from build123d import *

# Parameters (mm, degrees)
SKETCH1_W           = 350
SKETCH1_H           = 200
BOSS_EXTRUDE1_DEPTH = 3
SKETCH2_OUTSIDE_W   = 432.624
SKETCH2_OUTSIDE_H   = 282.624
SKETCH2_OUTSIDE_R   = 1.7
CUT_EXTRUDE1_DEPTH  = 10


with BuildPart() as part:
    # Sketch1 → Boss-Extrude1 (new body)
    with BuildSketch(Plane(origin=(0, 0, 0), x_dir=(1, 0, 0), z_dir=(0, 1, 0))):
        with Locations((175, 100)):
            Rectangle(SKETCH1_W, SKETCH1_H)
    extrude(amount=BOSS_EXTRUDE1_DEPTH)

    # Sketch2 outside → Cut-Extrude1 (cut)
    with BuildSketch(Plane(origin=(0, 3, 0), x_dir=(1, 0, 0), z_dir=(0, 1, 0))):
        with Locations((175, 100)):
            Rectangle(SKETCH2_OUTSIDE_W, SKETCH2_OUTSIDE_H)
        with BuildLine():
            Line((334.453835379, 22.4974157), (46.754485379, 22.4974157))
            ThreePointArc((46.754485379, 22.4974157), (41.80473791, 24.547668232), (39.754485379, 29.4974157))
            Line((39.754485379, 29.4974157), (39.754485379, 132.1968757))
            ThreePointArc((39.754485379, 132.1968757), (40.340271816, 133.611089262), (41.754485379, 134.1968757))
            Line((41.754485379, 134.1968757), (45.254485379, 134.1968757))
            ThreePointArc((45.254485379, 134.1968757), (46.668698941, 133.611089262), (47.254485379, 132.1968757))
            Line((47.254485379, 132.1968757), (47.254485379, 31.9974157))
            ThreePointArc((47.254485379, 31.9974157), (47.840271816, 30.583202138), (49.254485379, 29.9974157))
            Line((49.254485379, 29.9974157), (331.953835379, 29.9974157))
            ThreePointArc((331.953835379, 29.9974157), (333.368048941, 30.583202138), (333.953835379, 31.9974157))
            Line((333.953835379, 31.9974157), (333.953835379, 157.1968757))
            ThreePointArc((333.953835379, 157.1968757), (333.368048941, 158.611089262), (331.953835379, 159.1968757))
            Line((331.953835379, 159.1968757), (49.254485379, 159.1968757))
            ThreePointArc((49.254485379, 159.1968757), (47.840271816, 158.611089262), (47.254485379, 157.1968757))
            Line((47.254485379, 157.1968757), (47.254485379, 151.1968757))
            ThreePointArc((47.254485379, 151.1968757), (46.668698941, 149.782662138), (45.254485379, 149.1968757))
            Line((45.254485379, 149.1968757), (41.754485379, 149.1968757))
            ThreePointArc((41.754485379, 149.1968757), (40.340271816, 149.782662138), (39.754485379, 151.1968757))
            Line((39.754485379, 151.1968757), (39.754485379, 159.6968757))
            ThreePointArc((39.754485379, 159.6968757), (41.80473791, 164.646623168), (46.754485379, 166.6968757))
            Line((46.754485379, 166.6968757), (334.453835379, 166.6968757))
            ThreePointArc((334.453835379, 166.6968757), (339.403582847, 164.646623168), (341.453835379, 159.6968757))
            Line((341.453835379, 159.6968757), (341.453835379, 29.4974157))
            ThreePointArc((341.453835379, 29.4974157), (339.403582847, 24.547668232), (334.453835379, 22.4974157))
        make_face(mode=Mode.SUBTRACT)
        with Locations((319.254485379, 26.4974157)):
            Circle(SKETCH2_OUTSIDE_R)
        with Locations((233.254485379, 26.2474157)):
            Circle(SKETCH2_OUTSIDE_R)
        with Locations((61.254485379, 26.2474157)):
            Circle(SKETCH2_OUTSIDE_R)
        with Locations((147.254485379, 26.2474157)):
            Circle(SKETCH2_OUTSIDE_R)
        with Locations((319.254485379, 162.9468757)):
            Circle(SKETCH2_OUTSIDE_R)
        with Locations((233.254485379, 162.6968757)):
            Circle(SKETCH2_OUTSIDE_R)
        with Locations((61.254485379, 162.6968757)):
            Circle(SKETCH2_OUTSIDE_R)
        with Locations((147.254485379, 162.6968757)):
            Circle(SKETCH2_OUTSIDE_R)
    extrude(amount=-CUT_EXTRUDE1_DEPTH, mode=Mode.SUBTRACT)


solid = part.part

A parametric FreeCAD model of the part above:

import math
import FreeCAD as App
import Part
import Sketcher

doc = App.newDocument("Part")
params = doc.addObject("Spreadsheet::Sheet", "Params")
for row, (alias, value) in enumerate([
    ("sketch1_width", "350 mm"),
    ("sketch1_height", "200 mm"),
    ("pad1_length", "3 mm"),
    ("sketch2_radius", "7 mm"),
    ("sketch2_radius2", "2 mm"),
    ("sketch2_diameter", "3.4 mm"),
    ("sketch2_height", "6 mm"),
    ("sketch2_width", "3.5 mm"),
    ("pocket1_length", "10 mm"),
], start=1):
    params.set(f"A{row}", alias)
    params.set(f"B{row}", "=" + value)
    params.setAlias(f"B{row}", alias)

body = doc.addObject("PartDesign::Body", "Body")

# Sketch on XZ plane
sketch1 = body.newObject("Sketcher::SketchObject", "Sketch")
sketch1.AttachmentSupport = (doc.getObject("XZ_Plane"), [""])
sketch1.MapMode = "FlatFace"
sketch1.addGeometry([
    Part.LineSegment(App.Vector(0, -200, 0), App.Vector(0, 0, 0)),
    Part.LineSegment(App.Vector(0, 0, 0), App.Vector(350, 0, 0)),
    Part.LineSegment(App.Vector(350, 0, 0), App.Vector(350, -200, 0)),
    Part.LineSegment(App.Vector(350, -200, 0), App.Vector(0, -200, 0)),
], False)
sketch1.addConstraint([
    Sketcher.Constraint("Coincident", 0, 2, 1, 1),
    Sketcher.Constraint("Coincident", 1, 2, 2, 1),
    Sketcher.Constraint("Coincident", 2, 2, 3, 1),
    Sketcher.Constraint("Coincident", 3, 2, 0, 1),
    Sketcher.Constraint("Vertical", 0),
    Sketcher.Constraint("Horizontal", 1),
    Sketcher.Constraint("Vertical", 2),
    Sketcher.Constraint("Horizontal", 3),
    Sketcher.Constraint("Coincident", 0, 2, -1, 1),
    Sketcher.Constraint("DistanceX", 1, 1, 1, 2, 350.0),
    Sketcher.Constraint("DistanceY", 0, 1, 0, 2, 200.0),
])
sketch1.setExpression("Constraints[9]", "Params.sketch1_width")
sketch1.setExpression("Constraints[10]", "Params.sketch1_height")
pad1 = body.newObject("PartDesign::Pad", "Pad")
pad1.Profile = sketch1
pad1.setExpression("Length", "Params.pad1_length")
pad1.Reversed = True

# Sketch on XZ plane
sketch2 = body.newObject("Sketcher::SketchObject", "Sketch001")
sketch2.AttachmentSupport = (doc.getObject("XZ_Plane"), [""])
sketch2.MapMode = "FlatFace"
sketch2.AttachmentOffset = App.Placement(App.Vector(0, 0, -3), App.Rotation())
sketch2.addGeometry([
    Part.LineSegment(App.Vector(-41.3, -241.3, 0), App.Vector(-41.3, 41.3, 0)),  # 0
    Part.LineSegment(App.Vector(-41.3, 41.3, 0), App.Vector(391.3, 41.3, 0)),  # 1
    Part.LineSegment(App.Vector(391.3, 41.3, 0), App.Vector(391.3, -241.3, 0)),  # 2
    Part.LineSegment(App.Vector(391.3, -241.3, 0), App.Vector(-41.3, -241.3, 0)),  # 3
    Part.ArcOfCircle(Part.Circle(App.Vector(334.5, -29.5, 0), App.Vector(0, 0, 1), 7), math.radians(0), math.radians(90)),  # 4
    Part.LineSegment(App.Vector(334.5, -22.5, 0), App.Vector(46.8, -22.5, 0)),  # 5
    Part.ArcOfCircle(Part.Circle(App.Vector(46.8, -29.5, 0), App.Vector(0, 0, 1), 7), math.radians(90), math.radians(180)),  # 6
    Part.LineSegment(App.Vector(39.8, -29.5, 0), App.Vector(39.8, -132.2, 0)),  # 7
    Part.ArcOfCircle(Part.Circle(App.Vector(41.8, -132.2, 0), App.Vector(0, 0, 1), 2), math.radians(180), math.radians(270)),  # 8
    Part.LineSegment(App.Vector(41.8, -134.2, 0), App.Vector(45.3, -134.2, 0)),  # 9
    Part.ArcOfCircle(Part.Circle(App.Vector(45.3, -132.2, 0), App.Vector(0, 0, 1), 2), math.radians(-90), math.radians(0)),  # 10
    Part.LineSegment(App.Vector(47.3, -132.2, 0), App.Vector(47.3, -32, 0)),  # 11
    Part.ArcOfCircle(Part.Circle(App.Vector(49.3, -32, 0), App.Vector(0, 0, 1), 2), math.radians(90), math.radians(180)),  # 12
    Part.LineSegment(App.Vector(49.3, -30, 0), App.Vector(332, -30, 0)),  # 13
    Part.ArcOfCircle(Part.Circle(App.Vector(332, -32, 0), App.Vector(0, 0, 1), 2), math.radians(0), math.radians(90)),  # 14
    Part.LineSegment(App.Vector(334, -32, 0), App.Vector(334, -157.2, 0)),  # 15
    Part.ArcOfCircle(Part.Circle(App.Vector(332, -157.2, 0), App.Vector(0, 0, 1), 2), math.radians(-90), math.radians(0)),  # 16
    Part.LineSegment(App.Vector(332, -159.2, 0), App.Vector(49.3, -159.2, 0)),  # 17
    Part.ArcOfCircle(Part.Circle(App.Vector(49.3, -157.2, 0), App.Vector(0, 0, 1), 2), math.radians(180), math.radians(270)),  # 18
    Part.LineSegment(App.Vector(47.3, -157.2, 0), App.Vector(47.3, -151.2, 0)),  # 19
    Part.ArcOfCircle(Part.Circle(App.Vector(45.3, -151.2, 0), App.Vector(0, 0, 1), 2), math.radians(0), math.radians(90)),  # 20
    Part.LineSegment(App.Vector(45.3, -149.2, 0), App.Vector(41.8, -149.2, 0)),  # 21
    Part.ArcOfCircle(Part.Circle(App.Vector(41.8, -151.2, 0), App.Vector(0, 0, 1), 2), math.radians(90), math.radians(180)),  # 22
    Part.LineSegment(App.Vector(39.8, -151.2, 0), App.Vector(39.8, -159.7, 0)),  # 23
    Part.ArcOfCircle(Part.Circle(App.Vector(46.8, -159.7, 0), App.Vector(0, 0, 1), 7), math.radians(180), math.radians(270)),  # 24
    Part.LineSegment(App.Vector(46.8, -166.7, 0), App.Vector(334.5, -166.7, 0)),  # 25
    Part.ArcOfCircle(Part.Circle(App.Vector(334.5, -159.7, 0), App.Vector(0, 0, 1), 7), math.radians(-90), math.radians(0)),  # 26
    Part.LineSegment(App.Vector(341.5, -159.7, 0), App.Vector(341.5, -29.5, 0)),  # 27
    Part.Circle(App.Vector(319.3, -26.5, 0), App.Vector(0, 0, 1), 1.7),  # 28
    Part.Circle(App.Vector(233.3, -26.2, 0), App.Vector(0, 0, 1), 1.7),  # 29
    Part.Circle(App.Vector(61.3, -26.2, 0), App.Vector(0, 0, 1), 1.7),  # 30
    Part.Circle(App.Vector(147.3, -26.2, 0), App.Vector(0, 0, 1), 1.7),  # 31
    Part.Circle(App.Vector(319.3, -162.9, 0), App.Vector(0, 0, 1), 1.7),  # 32
    Part.Circle(App.Vector(233.3, -162.7, 0), App.Vector(0, 0, 1), 1.7),  # 33
    Part.Circle(App.Vector(61.3, -162.7, 0), App.Vector(0, 0, 1), 1.7),  # 34
    Part.Circle(App.Vector(147.3, -162.7, 0), App.Vector(0, 0, 1), 1.7),  # 35
], False)
sketch2.addConstraint([
    Sketcher.Constraint("Coincident", 0, 2, 1, 1),
    Sketcher.Constraint("Coincident", 1, 2, 2, 1),
    Sketcher.Constraint("Coincident", 2, 2, 3, 1),
    Sketcher.Constraint("Coincident", 3, 2, 0, 1),
    Sketcher.Constraint("Tangent", 4, 2, 5, 1),
    Sketcher.Constraint("Tangent", 5, 2, 6, 1),
    Sketcher.Constraint("Tangent", 6, 2, 7, 1),
    Sketcher.Constraint("Tangent", 7, 2, 8, 1),
    Sketcher.Constraint("Tangent", 8, 2, 9, 1),
    Sketcher.Constraint("Tangent", 9, 2, 10, 1),
    Sketcher.Constraint("Tangent", 10, 2, 11, 1),
    Sketcher.Constraint("Tangent", 11, 2, 12, 2),
    Sketcher.Constraint("Tangent", 12, 1, 13, 1),
    Sketcher.Constraint("Tangent", 13, 2, 14, 2),
    Sketcher.Constraint("Tangent", 14, 1, 15, 1),
    Sketcher.Constraint("Tangent", 15, 2, 16, 2),
    Sketcher.Constraint("Tangent", 16, 1, 17, 1),
    Sketcher.Constraint("Tangent", 17, 2, 18, 2),
    Sketcher.Constraint("Tangent", 18, 1, 19, 1),
    Sketcher.Constraint("Tangent", 19, 2, 20, 1),
    Sketcher.Constraint("Tangent", 20, 2, 21, 1),
    Sketcher.Constraint("Tangent", 21, 2, 22, 1),
    Sketcher.Constraint("Tangent", 22, 2, 23, 1),
    Sketcher.Constraint("Tangent", 23, 2, 24, 1),
    Sketcher.Constraint("Tangent", 24, 2, 25, 1),
    Sketcher.Constraint("Tangent", 25, 2, 26, 1),
    Sketcher.Constraint("Tangent", 26, 2, 27, 1),
    Sketcher.Constraint("Tangent", 27, 2, 4, 1),
    Sketcher.Constraint("Vertical", 0),
    Sketcher.Constraint("Horizontal", 1),
    Sketcher.Constraint("Vertical", 2),
    Sketcher.Constraint("Horizontal", 3),
    Sketcher.Constraint("Horizontal", 5),
    Sketcher.Constraint("Vertical", 7),
    Sketcher.Constraint("Horizontal", 9),
    Sketcher.Constraint("Vertical", 11),
    Sketcher.Constraint("Horizontal", 13),
    Sketcher.Constraint("Vertical", 15),
    Sketcher.Constraint("Horizontal", 17),
    Sketcher.Constraint("Vertical", 19),
    Sketcher.Constraint("Horizontal", 21),
    Sketcher.Constraint("Vertical", 23),
    Sketcher.Constraint("Horizontal", 25),
    Sketcher.Constraint("Vertical", 27),
    Sketcher.Constraint("Equal", 4, 6),
    Sketcher.Constraint("Equal", 8, 10),
    Sketcher.Constraint("Equal", 10, 12),
    Sketcher.Constraint("Equal", 12, 14),
    Sketcher.Constraint("Equal", 14, 16),
    Sketcher.Constraint("Equal", 16, 18),
    Sketcher.Constraint("Equal", 18, 20),
    Sketcher.Constraint("Equal", 20, 22),
    Sketcher.Constraint("Equal", 6, 24),
    Sketcher.Constraint("Equal", 24, 26),
    Sketcher.Constraint("Equal", 28, 29),
    Sketcher.Constraint("Equal", 29, 30),
    Sketcher.Constraint("Equal", 30, 31),
    Sketcher.Constraint("Equal", 31, 32),
    Sketcher.Constraint("Equal", 32, 33),
    Sketcher.Constraint("Equal", 33, 34),
    Sketcher.Constraint("Equal", 34, 35),
    Sketcher.Constraint("Horizontal", 29, 3, 30, 3),
    Sketcher.Constraint("Horizontal", 30, 3, 31, 3),
    Sketcher.Constraint("Horizontal", 33, 3, 34, 3),
    Sketcher.Constraint("Horizontal", 34, 3, 35, 3),
    Sketcher.Constraint("Vertical", 12, 3, 18, 3),
    Sketcher.Constraint("Vertical", 8, 3, 22, 3),
    Sketcher.Constraint("Vertical", 28, 3, 32, 3),
    Sketcher.Constraint("Vertical", 29, 3, 33, 3),
    Sketcher.Constraint("Vertical", 30, 3, 34, 3),
    Sketcher.Constraint("Vertical", 31, 3, 35, 3),
    Sketcher.Constraint("Radius", 4, 7.0),
    Sketcher.Constraint("Radius", 8, 2.0),
    Sketcher.Constraint("Diameter", 28, 3.4),
    Sketcher.Constraint("DistanceY", 19, 1, 19, 2, 6.0),
    Sketcher.Constraint("DistanceX", 9, 1, 9, 2, 3.5),
    Sketcher.Constraint("DistanceY", 23, 2, 23, 1, 8.5),
    Sketcher.Constraint("DistanceY", 16, 3, 10, 3, 25.0),
    Sketcher.Constraint("DistanceY", 4, 3, 28, 3, 3.0),
    Sketcher.Constraint("DistanceX", 12, 3, 28, 3, 270.0),
    Sketcher.Constraint("DistanceX", 29, 3, 28, 3, 86.0),
    Sketcher.Constraint("DistanceX", 12, 3, 30, 3, 12.0),
    Sketcher.Constraint("DistanceX", 30, 3, 31, 3, 86.0),
    Sketcher.Constraint("DistanceY", 33, 3, 26, 3, 3.0),
    Sketcher.Constraint("DistanceY", 12, 3, 6, 3, 2.5),
    Sketcher.Constraint("DistanceX", 14, 3, 4, 3, 2.5),
    Sketcher.Constraint("DistanceX", 1, 1, 1, 2, 432.624),
    Sketcher.Constraint("DistanceY", 0, 1, 0, 2, 282.624),
    Sketcher.Constraint("DistanceY", 28, 3, 29, 3, 0.25),
    Sketcher.Constraint("DistanceY", 32, 3, 16, 3, 5.75),
    Sketcher.Constraint("DistanceX", 0, 2, -1, 1, 41.312),
    Sketcher.Constraint("DistanceY", -1, 1, 0, 2, 41.312),
    Sketcher.Constraint("DistanceX", 5, 2, 5, 1, 287.69935),
    Sketcher.Constraint("DistanceY", 7, 2, 7, 1, 102.69946),
    Sketcher.Constraint("DistanceX", -1, 1, 4, 3, 334.453835),
    Sketcher.Constraint("DistanceY", 4, 3, -1, 1, 29.497416),
])
sketch2.setExpression("Constraints[71]", "Params.sketch2_radius")
sketch2.setExpression("Constraints[72]", "Params.sketch2_radius2")
sketch2.setExpression("Constraints[73]", "Params.sketch2_diameter")
sketch2.setExpression("Constraints[74]", "Params.sketch2_height")
sketch2.setExpression("Constraints[75]", "Params.sketch2_width")
pocket1 = body.newObject("PartDesign::Pocket", "Pocket")
pocket1.Profile = sketch2
pocket1.setExpression("Length", "Params.pocket1_length")
pocket1.Reversed = True

doc.recompute()
